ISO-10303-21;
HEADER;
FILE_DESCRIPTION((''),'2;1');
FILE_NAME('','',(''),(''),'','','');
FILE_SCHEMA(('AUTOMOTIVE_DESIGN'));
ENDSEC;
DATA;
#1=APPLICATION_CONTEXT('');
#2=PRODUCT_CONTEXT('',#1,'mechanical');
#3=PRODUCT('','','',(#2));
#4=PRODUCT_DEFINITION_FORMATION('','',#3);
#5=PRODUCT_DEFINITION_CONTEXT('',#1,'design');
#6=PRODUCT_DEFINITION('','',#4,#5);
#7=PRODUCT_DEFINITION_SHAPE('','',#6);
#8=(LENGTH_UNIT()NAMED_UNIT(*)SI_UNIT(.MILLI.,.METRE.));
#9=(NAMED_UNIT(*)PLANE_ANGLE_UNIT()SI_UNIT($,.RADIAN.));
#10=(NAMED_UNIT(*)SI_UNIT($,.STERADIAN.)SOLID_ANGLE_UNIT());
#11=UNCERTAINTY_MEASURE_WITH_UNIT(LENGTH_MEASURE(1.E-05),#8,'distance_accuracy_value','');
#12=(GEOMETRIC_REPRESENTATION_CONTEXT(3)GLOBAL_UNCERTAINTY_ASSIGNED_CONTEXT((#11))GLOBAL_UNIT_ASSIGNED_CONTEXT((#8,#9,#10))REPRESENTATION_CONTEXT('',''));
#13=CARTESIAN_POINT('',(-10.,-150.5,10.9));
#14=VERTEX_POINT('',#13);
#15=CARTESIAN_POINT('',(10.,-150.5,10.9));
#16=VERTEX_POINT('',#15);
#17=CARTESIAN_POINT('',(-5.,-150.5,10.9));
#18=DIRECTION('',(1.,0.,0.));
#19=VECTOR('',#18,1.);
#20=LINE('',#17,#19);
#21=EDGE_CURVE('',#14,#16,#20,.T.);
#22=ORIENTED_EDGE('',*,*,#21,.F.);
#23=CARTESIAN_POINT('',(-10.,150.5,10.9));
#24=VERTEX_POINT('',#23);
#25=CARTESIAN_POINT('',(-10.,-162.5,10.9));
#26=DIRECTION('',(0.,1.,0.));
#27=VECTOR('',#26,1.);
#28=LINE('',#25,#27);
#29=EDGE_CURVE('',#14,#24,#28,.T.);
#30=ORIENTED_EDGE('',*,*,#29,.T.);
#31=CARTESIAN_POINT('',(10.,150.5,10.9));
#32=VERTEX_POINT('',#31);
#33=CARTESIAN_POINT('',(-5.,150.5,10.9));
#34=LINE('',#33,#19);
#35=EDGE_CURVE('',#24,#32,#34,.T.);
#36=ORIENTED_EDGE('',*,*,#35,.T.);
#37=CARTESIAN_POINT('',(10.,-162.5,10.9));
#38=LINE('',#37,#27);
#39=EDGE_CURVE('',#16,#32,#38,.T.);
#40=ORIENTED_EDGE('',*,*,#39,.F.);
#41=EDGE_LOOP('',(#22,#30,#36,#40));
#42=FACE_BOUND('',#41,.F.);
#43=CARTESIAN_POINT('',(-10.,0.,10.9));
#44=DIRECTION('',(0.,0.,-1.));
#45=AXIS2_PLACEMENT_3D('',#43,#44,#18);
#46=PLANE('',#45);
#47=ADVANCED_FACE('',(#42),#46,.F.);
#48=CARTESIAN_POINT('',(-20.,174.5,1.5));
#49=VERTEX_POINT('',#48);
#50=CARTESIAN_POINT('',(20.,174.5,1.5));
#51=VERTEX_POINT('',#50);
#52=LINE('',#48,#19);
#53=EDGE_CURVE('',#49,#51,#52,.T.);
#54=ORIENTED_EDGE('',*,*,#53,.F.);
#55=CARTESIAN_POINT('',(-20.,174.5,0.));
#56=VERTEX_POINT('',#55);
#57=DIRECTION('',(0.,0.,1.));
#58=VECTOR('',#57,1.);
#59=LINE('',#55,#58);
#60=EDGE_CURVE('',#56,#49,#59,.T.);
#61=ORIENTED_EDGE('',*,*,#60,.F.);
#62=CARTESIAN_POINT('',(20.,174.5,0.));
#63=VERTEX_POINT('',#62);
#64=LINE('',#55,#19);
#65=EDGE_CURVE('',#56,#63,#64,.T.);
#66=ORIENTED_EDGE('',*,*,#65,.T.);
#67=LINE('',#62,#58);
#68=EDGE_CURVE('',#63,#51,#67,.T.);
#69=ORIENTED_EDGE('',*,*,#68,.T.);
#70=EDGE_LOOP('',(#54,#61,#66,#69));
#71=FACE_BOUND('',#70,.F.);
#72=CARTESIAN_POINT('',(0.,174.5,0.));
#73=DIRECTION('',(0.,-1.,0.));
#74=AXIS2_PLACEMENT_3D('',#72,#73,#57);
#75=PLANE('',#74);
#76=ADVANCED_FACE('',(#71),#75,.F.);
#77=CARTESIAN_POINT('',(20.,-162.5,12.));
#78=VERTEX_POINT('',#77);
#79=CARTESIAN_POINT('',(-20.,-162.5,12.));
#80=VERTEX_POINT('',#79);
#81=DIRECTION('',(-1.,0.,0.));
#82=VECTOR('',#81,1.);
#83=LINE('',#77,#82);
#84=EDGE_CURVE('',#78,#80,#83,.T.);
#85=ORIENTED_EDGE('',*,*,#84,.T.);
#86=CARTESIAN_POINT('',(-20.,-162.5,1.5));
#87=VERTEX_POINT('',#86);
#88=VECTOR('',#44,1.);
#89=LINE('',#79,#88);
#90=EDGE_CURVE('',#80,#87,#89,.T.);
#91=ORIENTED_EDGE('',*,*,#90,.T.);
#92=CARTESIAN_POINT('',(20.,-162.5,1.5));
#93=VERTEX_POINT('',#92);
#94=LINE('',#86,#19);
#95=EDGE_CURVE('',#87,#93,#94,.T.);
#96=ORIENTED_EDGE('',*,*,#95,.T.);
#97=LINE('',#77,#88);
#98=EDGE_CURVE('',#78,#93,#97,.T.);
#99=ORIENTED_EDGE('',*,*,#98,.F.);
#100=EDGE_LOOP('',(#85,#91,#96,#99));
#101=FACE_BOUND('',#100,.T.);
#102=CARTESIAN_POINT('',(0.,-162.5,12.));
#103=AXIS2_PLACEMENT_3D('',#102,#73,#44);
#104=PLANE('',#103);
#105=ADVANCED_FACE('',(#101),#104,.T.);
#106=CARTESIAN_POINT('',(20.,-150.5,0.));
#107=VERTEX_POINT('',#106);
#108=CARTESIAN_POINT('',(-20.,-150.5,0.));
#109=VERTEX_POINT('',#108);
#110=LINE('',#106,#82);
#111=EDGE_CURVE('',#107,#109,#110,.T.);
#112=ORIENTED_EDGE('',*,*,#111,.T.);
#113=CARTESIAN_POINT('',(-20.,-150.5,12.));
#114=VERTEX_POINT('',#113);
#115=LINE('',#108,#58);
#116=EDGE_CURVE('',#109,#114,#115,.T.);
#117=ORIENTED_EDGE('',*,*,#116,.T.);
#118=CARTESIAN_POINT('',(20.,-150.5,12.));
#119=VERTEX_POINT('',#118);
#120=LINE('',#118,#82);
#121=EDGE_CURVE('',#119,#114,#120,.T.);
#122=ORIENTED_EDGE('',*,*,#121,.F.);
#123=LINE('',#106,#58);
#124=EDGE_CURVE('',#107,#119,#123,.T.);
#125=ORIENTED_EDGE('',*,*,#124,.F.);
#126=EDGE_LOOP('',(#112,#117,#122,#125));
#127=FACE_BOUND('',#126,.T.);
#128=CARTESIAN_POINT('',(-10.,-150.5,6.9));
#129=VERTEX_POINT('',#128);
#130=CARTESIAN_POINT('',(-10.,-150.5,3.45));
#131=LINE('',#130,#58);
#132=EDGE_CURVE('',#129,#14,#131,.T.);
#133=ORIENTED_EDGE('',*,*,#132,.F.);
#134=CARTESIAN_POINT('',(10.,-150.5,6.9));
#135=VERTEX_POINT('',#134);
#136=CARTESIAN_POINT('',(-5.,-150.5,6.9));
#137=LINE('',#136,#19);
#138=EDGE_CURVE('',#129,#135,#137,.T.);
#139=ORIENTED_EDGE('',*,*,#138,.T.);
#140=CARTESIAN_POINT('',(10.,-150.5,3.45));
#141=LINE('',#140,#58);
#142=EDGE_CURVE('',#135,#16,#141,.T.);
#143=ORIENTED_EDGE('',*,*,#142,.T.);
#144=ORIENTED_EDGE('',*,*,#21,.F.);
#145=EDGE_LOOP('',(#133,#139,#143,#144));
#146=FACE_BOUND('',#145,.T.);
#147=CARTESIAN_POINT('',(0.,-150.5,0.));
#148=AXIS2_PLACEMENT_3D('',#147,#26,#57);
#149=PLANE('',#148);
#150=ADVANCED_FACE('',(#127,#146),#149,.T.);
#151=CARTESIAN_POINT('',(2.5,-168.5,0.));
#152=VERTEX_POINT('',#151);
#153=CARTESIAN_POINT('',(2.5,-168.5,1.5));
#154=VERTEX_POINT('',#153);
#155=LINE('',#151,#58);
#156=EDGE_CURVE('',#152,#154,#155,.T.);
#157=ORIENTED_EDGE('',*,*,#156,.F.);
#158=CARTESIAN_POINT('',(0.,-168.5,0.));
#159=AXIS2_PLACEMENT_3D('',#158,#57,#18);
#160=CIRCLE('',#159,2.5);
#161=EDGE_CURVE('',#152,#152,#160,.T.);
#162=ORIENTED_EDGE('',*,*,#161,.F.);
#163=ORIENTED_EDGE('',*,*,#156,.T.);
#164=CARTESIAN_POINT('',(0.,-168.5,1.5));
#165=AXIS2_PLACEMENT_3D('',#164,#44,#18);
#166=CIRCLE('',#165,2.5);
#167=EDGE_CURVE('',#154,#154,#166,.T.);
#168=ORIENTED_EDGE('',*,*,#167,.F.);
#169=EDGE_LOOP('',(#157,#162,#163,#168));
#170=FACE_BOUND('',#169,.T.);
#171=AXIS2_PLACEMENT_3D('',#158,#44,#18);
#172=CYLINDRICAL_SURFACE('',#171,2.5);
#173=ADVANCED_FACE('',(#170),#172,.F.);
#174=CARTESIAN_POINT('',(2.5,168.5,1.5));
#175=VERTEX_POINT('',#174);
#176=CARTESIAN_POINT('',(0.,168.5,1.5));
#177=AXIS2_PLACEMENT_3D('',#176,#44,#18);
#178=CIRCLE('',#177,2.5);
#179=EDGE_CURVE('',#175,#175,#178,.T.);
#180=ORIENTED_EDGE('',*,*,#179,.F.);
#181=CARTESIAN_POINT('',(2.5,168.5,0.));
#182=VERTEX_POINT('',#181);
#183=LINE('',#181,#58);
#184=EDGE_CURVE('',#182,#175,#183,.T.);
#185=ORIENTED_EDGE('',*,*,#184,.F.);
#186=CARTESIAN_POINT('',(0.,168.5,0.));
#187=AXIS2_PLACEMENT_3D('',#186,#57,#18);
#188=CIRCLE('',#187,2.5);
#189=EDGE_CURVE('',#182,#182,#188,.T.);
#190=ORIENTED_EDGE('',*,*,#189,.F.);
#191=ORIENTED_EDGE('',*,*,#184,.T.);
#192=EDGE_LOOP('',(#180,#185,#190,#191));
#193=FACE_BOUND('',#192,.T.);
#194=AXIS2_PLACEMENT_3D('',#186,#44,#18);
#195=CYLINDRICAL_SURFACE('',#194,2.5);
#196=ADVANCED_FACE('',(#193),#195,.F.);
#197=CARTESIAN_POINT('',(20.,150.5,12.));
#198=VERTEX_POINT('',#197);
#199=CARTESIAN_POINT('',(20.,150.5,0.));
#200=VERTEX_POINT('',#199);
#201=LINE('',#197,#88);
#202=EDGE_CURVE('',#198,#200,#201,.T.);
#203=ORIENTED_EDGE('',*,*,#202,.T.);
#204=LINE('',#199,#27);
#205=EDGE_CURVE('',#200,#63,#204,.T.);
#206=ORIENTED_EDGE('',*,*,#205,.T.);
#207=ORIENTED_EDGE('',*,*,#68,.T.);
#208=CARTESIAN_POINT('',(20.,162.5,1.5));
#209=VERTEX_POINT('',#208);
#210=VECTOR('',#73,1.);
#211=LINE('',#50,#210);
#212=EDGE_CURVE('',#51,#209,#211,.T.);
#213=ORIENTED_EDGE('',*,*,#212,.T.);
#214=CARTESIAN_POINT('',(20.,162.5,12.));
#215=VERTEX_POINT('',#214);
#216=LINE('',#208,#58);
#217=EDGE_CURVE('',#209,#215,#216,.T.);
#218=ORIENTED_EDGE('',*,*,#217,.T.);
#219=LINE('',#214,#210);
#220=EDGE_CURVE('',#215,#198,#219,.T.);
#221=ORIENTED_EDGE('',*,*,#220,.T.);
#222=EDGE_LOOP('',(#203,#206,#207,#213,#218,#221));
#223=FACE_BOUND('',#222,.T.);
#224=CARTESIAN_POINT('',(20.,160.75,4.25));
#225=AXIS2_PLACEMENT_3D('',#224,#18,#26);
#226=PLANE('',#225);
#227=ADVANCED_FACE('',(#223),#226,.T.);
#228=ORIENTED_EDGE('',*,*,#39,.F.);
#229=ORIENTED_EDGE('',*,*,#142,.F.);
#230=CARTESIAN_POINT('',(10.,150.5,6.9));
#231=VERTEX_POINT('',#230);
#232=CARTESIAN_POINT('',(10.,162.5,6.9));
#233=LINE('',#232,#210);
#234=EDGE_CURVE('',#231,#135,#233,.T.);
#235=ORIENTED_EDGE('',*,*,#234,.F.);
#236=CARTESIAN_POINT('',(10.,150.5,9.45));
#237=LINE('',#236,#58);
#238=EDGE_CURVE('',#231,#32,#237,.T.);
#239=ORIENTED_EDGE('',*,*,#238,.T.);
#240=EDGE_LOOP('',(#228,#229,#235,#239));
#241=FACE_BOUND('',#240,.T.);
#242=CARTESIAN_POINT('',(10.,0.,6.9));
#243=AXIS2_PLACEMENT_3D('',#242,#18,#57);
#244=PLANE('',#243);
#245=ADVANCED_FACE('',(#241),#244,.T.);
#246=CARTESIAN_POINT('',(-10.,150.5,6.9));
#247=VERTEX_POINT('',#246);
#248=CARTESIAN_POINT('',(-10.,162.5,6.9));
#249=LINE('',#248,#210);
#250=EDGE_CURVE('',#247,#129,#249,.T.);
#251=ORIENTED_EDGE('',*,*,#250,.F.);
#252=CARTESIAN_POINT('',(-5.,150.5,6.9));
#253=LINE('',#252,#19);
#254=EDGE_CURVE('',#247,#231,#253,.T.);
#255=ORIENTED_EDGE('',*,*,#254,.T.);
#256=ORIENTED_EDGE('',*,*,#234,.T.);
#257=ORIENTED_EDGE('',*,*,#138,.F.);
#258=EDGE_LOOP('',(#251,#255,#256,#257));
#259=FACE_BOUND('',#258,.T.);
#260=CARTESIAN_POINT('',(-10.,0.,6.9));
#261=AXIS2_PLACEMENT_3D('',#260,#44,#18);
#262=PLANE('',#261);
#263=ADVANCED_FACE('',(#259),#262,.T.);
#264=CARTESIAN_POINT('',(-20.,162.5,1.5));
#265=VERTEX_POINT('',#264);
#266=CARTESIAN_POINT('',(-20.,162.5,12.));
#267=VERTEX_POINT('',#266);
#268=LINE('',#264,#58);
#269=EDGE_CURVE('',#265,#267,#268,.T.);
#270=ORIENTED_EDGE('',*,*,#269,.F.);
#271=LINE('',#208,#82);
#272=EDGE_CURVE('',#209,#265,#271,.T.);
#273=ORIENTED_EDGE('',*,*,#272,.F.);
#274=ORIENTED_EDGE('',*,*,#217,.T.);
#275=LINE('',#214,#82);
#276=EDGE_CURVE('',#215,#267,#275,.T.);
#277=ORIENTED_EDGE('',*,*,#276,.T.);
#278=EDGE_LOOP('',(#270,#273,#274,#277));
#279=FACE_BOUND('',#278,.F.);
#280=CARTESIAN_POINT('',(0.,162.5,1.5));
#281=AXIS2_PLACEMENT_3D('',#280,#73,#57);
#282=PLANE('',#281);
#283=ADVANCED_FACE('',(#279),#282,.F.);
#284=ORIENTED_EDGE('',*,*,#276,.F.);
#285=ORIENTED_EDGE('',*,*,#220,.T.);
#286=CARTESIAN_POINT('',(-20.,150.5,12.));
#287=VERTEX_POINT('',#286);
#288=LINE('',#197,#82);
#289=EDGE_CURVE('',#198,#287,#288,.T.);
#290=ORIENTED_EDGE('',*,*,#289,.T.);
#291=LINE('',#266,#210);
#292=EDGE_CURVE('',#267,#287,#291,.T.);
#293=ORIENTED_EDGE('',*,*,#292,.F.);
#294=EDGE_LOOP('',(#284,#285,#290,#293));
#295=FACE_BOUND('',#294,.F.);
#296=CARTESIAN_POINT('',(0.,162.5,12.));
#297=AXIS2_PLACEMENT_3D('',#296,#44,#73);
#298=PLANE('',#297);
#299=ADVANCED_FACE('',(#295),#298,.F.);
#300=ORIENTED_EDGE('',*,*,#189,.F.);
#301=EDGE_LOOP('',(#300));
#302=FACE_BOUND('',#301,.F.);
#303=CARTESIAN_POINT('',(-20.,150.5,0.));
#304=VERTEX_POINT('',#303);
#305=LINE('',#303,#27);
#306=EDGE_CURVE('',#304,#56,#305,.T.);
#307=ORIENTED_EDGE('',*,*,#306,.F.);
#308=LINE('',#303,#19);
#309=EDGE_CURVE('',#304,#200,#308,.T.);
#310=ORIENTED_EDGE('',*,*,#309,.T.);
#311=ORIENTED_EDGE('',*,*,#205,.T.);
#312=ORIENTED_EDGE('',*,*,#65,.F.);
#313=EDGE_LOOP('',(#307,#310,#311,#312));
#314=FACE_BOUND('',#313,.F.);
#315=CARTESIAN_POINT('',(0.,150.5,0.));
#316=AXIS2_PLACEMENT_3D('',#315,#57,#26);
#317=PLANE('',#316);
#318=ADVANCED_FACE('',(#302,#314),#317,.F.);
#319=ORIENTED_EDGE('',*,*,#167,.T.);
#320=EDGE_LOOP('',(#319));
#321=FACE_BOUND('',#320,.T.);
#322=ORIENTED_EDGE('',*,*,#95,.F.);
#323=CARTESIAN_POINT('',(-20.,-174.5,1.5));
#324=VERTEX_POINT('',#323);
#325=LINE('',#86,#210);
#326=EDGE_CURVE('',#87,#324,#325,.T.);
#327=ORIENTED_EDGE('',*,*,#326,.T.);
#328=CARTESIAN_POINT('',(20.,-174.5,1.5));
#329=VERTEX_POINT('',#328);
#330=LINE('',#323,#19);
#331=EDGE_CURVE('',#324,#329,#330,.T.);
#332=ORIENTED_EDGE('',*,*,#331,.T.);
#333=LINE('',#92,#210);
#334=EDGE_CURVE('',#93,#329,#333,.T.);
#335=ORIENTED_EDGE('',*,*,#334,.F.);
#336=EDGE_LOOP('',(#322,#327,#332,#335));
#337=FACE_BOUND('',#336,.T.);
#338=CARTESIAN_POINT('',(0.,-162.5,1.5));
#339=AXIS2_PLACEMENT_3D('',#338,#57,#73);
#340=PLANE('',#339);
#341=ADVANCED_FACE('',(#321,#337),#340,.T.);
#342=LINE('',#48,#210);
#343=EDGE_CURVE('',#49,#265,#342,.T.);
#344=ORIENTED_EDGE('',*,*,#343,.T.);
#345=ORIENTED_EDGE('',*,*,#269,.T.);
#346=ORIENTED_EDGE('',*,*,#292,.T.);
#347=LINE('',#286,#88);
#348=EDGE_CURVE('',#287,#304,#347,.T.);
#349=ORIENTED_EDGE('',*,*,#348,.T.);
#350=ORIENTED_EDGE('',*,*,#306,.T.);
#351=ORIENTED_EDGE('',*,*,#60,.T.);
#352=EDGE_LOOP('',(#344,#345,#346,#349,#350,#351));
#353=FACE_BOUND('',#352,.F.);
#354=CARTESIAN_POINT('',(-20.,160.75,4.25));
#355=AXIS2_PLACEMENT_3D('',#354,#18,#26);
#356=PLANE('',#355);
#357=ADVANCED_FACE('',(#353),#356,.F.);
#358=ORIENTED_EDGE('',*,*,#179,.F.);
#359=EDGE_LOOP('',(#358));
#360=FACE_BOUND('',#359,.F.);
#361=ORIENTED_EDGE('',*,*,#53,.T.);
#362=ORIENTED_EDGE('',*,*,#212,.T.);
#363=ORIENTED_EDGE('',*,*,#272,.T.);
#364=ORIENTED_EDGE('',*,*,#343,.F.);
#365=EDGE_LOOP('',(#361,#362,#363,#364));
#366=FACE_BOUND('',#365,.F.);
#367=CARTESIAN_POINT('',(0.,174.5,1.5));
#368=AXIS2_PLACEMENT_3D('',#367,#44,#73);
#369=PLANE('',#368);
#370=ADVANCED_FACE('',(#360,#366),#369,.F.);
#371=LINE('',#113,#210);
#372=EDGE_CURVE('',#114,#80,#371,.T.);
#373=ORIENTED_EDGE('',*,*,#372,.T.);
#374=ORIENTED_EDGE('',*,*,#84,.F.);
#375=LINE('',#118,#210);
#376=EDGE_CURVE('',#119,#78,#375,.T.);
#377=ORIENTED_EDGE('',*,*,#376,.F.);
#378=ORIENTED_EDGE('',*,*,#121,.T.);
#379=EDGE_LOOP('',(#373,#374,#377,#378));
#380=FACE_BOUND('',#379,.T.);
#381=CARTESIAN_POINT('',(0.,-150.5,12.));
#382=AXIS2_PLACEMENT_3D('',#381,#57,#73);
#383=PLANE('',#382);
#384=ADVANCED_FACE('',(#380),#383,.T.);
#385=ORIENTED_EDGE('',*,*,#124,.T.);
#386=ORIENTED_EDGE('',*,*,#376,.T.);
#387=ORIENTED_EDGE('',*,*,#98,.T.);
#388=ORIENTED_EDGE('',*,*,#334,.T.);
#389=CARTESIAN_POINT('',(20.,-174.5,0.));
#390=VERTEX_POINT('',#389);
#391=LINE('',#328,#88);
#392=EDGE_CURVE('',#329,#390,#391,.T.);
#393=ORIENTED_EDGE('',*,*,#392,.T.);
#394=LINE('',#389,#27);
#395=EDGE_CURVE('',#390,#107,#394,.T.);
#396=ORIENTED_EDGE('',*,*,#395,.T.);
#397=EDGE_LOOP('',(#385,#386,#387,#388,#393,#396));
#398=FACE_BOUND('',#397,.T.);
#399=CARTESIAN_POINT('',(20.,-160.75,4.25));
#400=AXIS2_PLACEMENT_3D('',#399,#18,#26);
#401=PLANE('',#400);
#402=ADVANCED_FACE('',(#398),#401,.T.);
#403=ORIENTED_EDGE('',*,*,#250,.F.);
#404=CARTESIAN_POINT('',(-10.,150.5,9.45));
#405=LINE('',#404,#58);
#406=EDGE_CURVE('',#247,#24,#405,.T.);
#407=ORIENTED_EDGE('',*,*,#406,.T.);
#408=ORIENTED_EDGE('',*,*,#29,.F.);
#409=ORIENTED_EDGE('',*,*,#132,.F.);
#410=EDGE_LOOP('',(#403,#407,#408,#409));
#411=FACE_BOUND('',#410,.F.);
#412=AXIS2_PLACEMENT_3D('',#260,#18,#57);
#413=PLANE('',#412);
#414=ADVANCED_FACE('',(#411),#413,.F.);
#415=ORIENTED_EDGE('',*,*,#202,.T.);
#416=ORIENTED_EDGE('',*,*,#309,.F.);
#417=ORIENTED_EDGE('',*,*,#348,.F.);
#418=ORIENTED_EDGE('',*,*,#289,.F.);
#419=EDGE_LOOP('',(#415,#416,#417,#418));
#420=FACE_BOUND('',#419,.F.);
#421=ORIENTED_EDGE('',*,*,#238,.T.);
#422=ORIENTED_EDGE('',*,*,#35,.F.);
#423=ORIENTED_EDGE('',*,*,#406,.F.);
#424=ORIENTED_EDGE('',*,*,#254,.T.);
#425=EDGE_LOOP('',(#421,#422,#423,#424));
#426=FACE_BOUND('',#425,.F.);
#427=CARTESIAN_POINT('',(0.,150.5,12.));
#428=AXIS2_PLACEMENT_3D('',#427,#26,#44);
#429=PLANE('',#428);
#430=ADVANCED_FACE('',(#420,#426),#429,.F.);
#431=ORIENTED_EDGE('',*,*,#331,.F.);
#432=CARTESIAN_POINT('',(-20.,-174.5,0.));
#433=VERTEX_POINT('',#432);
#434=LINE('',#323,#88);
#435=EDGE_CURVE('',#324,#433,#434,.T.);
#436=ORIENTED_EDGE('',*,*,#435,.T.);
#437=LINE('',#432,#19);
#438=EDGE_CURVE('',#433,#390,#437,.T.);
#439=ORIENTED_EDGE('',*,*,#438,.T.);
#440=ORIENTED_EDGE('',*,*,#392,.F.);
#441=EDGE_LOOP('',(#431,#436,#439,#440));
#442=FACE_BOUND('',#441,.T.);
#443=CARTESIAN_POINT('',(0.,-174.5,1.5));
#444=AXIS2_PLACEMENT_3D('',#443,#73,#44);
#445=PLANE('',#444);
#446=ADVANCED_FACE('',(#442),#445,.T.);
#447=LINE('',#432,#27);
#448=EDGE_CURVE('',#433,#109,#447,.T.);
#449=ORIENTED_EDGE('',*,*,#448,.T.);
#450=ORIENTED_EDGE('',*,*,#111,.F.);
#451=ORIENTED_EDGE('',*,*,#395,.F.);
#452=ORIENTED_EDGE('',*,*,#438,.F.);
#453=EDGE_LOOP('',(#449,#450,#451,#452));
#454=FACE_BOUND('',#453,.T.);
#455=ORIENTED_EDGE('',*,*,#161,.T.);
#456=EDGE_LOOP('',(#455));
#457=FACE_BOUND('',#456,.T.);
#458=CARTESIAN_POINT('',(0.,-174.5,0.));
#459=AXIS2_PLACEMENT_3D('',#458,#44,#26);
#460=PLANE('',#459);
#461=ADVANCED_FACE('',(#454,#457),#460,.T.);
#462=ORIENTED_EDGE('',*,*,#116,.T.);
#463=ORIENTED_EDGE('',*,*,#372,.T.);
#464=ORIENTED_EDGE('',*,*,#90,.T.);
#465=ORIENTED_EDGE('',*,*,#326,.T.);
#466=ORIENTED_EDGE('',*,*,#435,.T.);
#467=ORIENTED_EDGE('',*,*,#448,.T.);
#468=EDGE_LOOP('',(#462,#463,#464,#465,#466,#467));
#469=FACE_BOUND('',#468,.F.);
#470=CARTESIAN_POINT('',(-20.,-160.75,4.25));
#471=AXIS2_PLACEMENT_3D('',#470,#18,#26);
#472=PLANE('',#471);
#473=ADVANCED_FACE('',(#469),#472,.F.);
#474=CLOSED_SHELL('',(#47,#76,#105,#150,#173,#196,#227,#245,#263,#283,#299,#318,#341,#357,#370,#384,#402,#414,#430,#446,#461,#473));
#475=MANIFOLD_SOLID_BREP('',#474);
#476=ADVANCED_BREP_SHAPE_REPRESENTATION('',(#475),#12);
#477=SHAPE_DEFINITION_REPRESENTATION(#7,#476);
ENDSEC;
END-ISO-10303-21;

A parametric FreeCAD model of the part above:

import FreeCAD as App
import Part
import Sketcher

V = App.Vector


def add_polygon(sketch, points):
    """Adds a closed chain of lines whose ends are joined by coincident constraints."""
    first, n = sketch.GeometryCount, len(points)
    for a, b in zip(points, points[1:] + points[:1]):
        sketch.addGeometry(Part.LineSegment(App.Vector(*a, 0), App.Vector(*b, 0)), False)
    for i in range(n):
        sketch.addConstraint(Sketcher.Constraint("Coincident", first + i, 2, first + (i + 1) % n, 1))

doc = App.newDocument("Part")
body = doc.addObject("PartDesign::Body", "Body")

sketch1 = doc.addObject("Sketcher::SketchObject", "Sketch")
body.addObject(sketch1)
sketch1.AttachmentSupport = (doc.XZ_Plane, [""])
sketch1.MapMode = "FlatFace"
add_polygon(sketch1, [(-10, 10.9), (-10, 6.9), (10, 6.9), (10, 10.9)])
sketch1.addConstraint([
    Sketcher.Constraint("Vertical", 0),
    Sketcher.Constraint("Horizontal", 1),
    Sketcher.Constraint("Vertical", 2),
    Sketcher.Constraint("Horizontal", 3),
    Sketcher.Constraint("DistanceX", 1, 1, 1, 2, 20.0),
    Sketcher.Constraint("DistanceY", 0, 2, 0, 1, 4.0),
    Sketcher.Constraint("DistanceX", 0, 2, -1, 1, 10.0),
    Sketcher.Constraint("DistanceY", -1, 1, 0, 2, 6.9),
])
pad1 = doc.addObject("PartDesign::Pad", "Pad")
body.addObject(pad1)
pad1.Profile = sketch1
pad1.Length = 325
pad1.Midplane = True

sketch2 = doc.addObject("Sketcher::SketchObject", "Sketch001")
body.addObject(sketch2)
sketch2.AttachmentSupport = (doc.YZ_Plane, [""])
sketch2.MapMode = "FlatFace"
add_polygon(sketch2, [(150.5, 12), (150.5, 0), (174.5, 0), (174.5, 1.5), (162.5, 1.5), (162.5, 12)])
add_polygon(sketch2, [(-162.5, 12), (-162.5, 1.5), (-174.5, 1.5), (-174.5, 0), (-150.5, 0), (-150.5, 12)])
sketch2.addConstraint([
    Sketcher.Constraint("Vertical", 0),
    Sketcher.Constraint("Horizontal", 1),
    Sketcher.Constraint("Vertical", 2),
    Sketcher.Constraint("Horizontal", 3),
    Sketcher.Constraint("Vertical", 4),
    Sketcher.Constraint("Horizontal", 5),
    Sketcher.Constraint("Vertical", 6),
    Sketcher.Constraint("Horizontal", 7),
    Sketcher.Constraint("Vertical", 8),
    Sketcher.Constraint("Horizontal", 9),
    Sketcher.Constraint("Vertical", 10),
    Sketcher.Constraint("Horizontal", 11),
    Sketcher.Constraint("Symmetric", 1, 2, 8, 2, -1, 1),
    Sketcher.Constraint("Symmetric", 3, 2, 6, 2, -2),
    Sketcher.Constraint("Symmetric", 0, 2, 9, 2, -2),
    Sketcher.Constraint("Horizontal", 5, 2, 10, 2),
    Sketcher.Constraint("Equal", 3, 5),
    Sketcher.Constraint("Equal", 11, 0),
    Sketcher.Constraint("DistanceX", 1, 1, 1, 2, 24.0),
    Sketcher.Constraint("DistanceY", 2, 1, 2, 2, 1.5),
    Sketcher.Constraint("DistanceX", 6, 2, 0, 2, 313.0),
])
pad2 = doc.addObject("PartDesign::Pad", "Pad001")
body.addObject(pad2)
pad2.Profile = sketch2
pad2.Length = 40
pad2.Midplane = True

sketch3 = doc.addObject("Sketcher::SketchObject", "Sketch002")
body.addObject(sketch3)
sketch3.AttachmentSupport = (doc.XY_Plane, [""])
sketch3.MapMode = "FlatFace"
sketch3.addGeometry([
    Part.Circle(V(0, -168.5, 0), V(0, 0, 1), 2.5),
    Part.Circle(V(0, 168.5, 0), V(0, 0, 1), 2.5),
], False)
sketch3.addConstraint([
    Sketcher.Constraint("Equal", 0, 1),
    Sketcher.Constraint("Symmetric", 0, 3, 1, 3, -1, 1),
    Sketcher.Constraint("PointOnObject", 0, 3, -2),
    Sketcher.Constraint("Diameter", 0, 5.0),
    Sketcher.Constraint("DistanceY", 0, 3, 1, 3, 337.0),
])
pocket1 = doc.addObject("PartDesign::Pocket", "Pocket")
body.addObject(pocket1)
pocket1.Profile = sketch3
pocket1.Type = "ThroughAll"
pocket1.Midplane = True

doc.recompute()
